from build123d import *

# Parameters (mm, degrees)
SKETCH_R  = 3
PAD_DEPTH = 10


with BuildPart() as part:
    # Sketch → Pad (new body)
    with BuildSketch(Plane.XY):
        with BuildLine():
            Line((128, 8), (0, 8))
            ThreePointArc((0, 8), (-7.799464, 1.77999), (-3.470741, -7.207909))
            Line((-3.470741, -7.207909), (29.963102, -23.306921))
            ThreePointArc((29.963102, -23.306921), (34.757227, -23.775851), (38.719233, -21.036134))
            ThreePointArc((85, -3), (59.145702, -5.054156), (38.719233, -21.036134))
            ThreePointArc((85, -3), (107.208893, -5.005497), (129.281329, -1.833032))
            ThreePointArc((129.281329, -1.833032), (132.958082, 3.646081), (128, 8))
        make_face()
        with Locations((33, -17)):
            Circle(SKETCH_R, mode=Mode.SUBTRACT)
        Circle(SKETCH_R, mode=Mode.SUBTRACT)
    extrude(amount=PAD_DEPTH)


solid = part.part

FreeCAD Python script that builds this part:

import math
import FreeCAD as App
import Part
import Sketcher

V = App.Vector

doc = App.newDocument("Part")
body = doc.addObject("PartDesign::Body", "Body")

sketch1 = body.newObject("Sketcher::SketchObject", "Sketch")
sketch1.AttachmentSupport = (doc.getObject("XY_Plane"), [""])
sketch1.MapMode = "FlatFace"
sketch1.addGeometry(Part.LineSegment(V(128, 8, 0), V(0, 8, 0)), False)
sketch1.addGeometry(Part.ArcOfCircle(Part.Circle(V(0, 0, 0), V(0, 0, 1), 8), math.radians(90), math.radians(244)), False)
sketch1.addGeometry(Part.LineSegment(V(-3.5, -7.2, 0), V(30, -23.3, 0)), False)
sketch1.addGeometry(Part.ArcOfCircle(Part.Circle(V(33, -17, 0), V(0, 0, 1), 7), math.radians(-116), math.radians(-35)), False)
sketch1.addGeometry(Part.ArcOfCircle(Part.Circle(V(75.5, -47, 0), V(0, 0, 1), 45), math.radians(78), math.radians(145)), False)
sketch1.addGeometry(Part.ArcOfCircle(Part.Circle(V(104.7, 91, 0), V(0, 0, 1), 96), math.radians(-102), math.radians(-75)), False)
sketch1.addGeometry(Part.ArcOfCircle(Part.Circle(V(128, 3, 0), V(0, 0, 1), 5), math.radians(-75), math.radians(90)), False)
sketch1.addGeometry(Part.Circle(V(33, -17, 0), V(0, 0, 1), 3), False)
sketch1.addGeometry(Part.Circle(V(0, 0, 0), V(0, 0, 1), 3), False)
sketch1.addConstraint(Sketcher.Constraint("Tangent", 0, 2, 1, 1))
sketch1.addConstraint(Sketcher.Constraint("Tangent", 1, 2, 2, 1))
sketch1.addConstraint(Sketcher.Constraint("Tangent", 2, 2, 3, 1))
sketch1.addConstraint(Sketcher.Constraint("Tangent", 3, 2, 4, 2))
sketch1.addConstraint(Sketcher.Constraint("Coincident", 4, 1, 5, 1))
sketch1.addConstraint(Sketcher.Constraint("Tangent", 5, 2, 6, 1))
sketch1.addConstraint(Sketcher.Constraint("Tangent", 6, 2, 0, 1))
sketch1.addConstraint(Sketcher.Constraint("Horizontal", 0))
sketch1.addConstraint(Sketcher.Constraint("Coincident", 1, 3, -1, 1))
sketch1.addConstraint(Sketcher.Constraint("Coincident", 8, 3, -1, 1))
sketch1.addConstraint(Sketcher.Constraint("Coincident", 7, 3, 3, 3))
sketch1.addConstraint(Sketcher.Constraint("Equal", 7, 8))
sketch1.addConstraint(Sketcher.Constraint("Diameter", 7, 6.0))
sketch1.addConstraint(Sketcher.Constraint("Radius", 1, 8.0))
sketch1.addConstraint(Sketcher.Constraint("Radius", 3, 7.0))
sketch1.addConstraint(Sketcher.Constraint("Radius", 4, 44.999999))
sketch1.addConstraint(Sketcher.Constraint("Radius", 6, 5.0))
sketch1.addConstraint(Sketcher.Constraint("DistanceX", 0, 2, 0, 1, 128.0))
sketch1.addConstraint(Sketcher.Constraint("DistanceX", -1, 1, 3, 3, 33.0))
sketch1.addConstraint(Sketcher.Constraint("DistanceY", 3, 3, -1, 1, 17.0))
sketch1.addConstraint(Sketcher.Constraint("DistanceX", -1, 1, 4, 1, 85.0))
sketch1.addConstraint(Sketcher.Constraint("DistanceY", 4, 1, -1, 1, 3.0))
sketch1.addConstraint(Sketcher.Constraint("Radius", 5, 96.000004))
pad1 = body.newObject("PartDesign::Pad", "Pad")
pad1.Profile = sketch1
pad1.Length = 10

doc.recompute()
